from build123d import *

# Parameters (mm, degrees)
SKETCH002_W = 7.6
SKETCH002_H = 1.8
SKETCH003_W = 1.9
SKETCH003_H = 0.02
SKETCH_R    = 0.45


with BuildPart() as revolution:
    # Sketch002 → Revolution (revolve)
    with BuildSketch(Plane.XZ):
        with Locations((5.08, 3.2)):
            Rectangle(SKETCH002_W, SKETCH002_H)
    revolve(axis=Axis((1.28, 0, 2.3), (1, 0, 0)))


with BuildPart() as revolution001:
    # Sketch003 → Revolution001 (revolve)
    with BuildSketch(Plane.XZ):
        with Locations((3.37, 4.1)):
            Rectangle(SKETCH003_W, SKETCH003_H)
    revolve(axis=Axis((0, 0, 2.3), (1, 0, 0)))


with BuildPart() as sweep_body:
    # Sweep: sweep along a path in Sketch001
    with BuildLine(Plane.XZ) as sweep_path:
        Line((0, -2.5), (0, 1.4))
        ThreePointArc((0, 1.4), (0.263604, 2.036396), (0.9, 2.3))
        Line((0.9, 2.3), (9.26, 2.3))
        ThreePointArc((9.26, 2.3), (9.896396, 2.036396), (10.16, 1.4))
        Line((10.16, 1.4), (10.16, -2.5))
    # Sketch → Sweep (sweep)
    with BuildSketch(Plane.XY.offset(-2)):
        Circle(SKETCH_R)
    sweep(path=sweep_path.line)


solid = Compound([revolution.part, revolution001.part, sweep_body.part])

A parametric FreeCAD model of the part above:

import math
import FreeCAD as App
import Part
import Sketcher
from FreeCAD import Vector

doc = App.newDocument("Part")
body = doc.addObject("PartDesign::Body", "Body")

sketch1 = body.newObject("Sketcher::SketchObject", "Sketch")
sketch1.AttachmentSupport = (doc.getObject("XZ_Plane"), [""])
sketch1.MapMode = "FlatFace"
sketch1.addGeometry(Part.LineSegment(Vector(1.28, 4.1, 0), Vector(1.28, 2.3, 0)), False)
sketch1.addGeometry(Part.LineSegment(Vector(1.28, 2.3, 0), Vector(8.88, 2.3, 0)), False)
sketch1.addGeometry(Part.LineSegment(Vector(8.88, 2.3, 0), Vector(8.88, 4.1, 0)), False)
sketch1.addGeometry(Part.LineSegment(Vector(8.88, 4.1, 0), Vector(1.28, 4.1, 0)), False)
sketch1.addGeometry(Part.LineSegment(Vector(1.28, 2.3, 0), Vector(8.88, 2.3, 0)), True)
sketch1.addConstraint(Sketcher.Constraint("Coincident", 0, 2, 1, 1))
sketch1.addConstraint(Sketcher.Constraint("Coincident", 1, 2, 2, 1))
sketch1.addConstraint(Sketcher.Constraint("Coincident", 2, 2, 3, 1))
sketch1.addConstraint(Sketcher.Constraint("Coincident", 3, 2, 0, 1))
sketch1.addConstraint(Sketcher.Constraint("Vertical", 0))
sketch1.addConstraint(Sketcher.Constraint("Horizontal", 1))
sketch1.addConstraint(Sketcher.Constraint("Vertical", 2))
sketch1.addConstraint(Sketcher.Constraint("Horizontal", 3))
sketch1.addConstraint(Sketcher.Constraint("Horizontal", 4))
sketch1.addConstraint(Sketcher.Constraint("Coincident", 4, 1, 0, 2))
sketch1.addConstraint(Sketcher.Constraint("Vertical", 2, 2, 4, 2))
sketch1.addConstraint(Sketcher.Constraint("DistanceX", 1, 1, 1, 2, 7.6))
sketch1.addConstraint(Sketcher.Constraint("DistanceY", 0, 2, 0, 1, 1.8))
sketch1.addConstraint(Sketcher.Constraint("DistanceY", -1, 1, 0, 2, 2.3))
sketch1.addConstraint(Sketcher.Constraint("DistanceX", -1, 1, 0, 2, 1.28))
revolution = body.newObject("PartDesign::Revolution", "Revolution")
revolution.Profile = sketch1
revolution.ReferenceAxis = (sketch1, ["Axis0"])
revolution.Angle = 360
body2 = doc.addObject("PartDesign::Body", "Body001")

sketch2 = body2.newObject("Sketcher::SketchObject", "Sketch001")
sketch2.AttachmentSupport = (doc.getObject("XZ_Plane001"), [""])
sketch2.MapMode = "FlatFace"
sketch2.addGeometry(Part.LineSegment(Vector(2.42, 4.11, 0), Vector(2.42, 4.09, 0)), False)
sketch2.addGeometry(Part.LineSegment(Vector(2.42, 4.09, 0), Vector(4.32, 4.09, 0)), False)
sketch2.addGeometry(Part.LineSegment(Vector(4.32, 4.09, 0), Vector(4.32, 4.11, 0)), False)
sketch2.addGeometry(Part.LineSegment(Vector(4.32, 4.11, 0), Vector(2.42, 4.11, 0)), False)
sketch2.addGeometry(Part.LineSegment(Vector(2.42, 2.3, 0), Vector(4.32, 2.3, 0)), True)
sketch2.addConstraint(Sketcher.Constraint("Coincident", 0, 2, 1, 1))
sketch2.addConstraint(Sketcher.Constraint("Coincident", 1, 2, 2, 1))
sketch2.addConstraint(Sketcher.Constraint("Coincident", 2, 2, 3, 1))
sketch2.addConstraint(Sketcher.Constraint("Coincident", 3, 2, 0, 1))
sketch2.addConstraint(Sketcher.Constraint("Vertical", 0))
sketch2.addConstraint(Sketcher.Constraint("Horizontal", 1))
sketch2.addConstraint(Sketcher.Constraint("Vertical", 2))
sketch2.addConstraint(Sketcher.Constraint("Horizontal", 3))
sketch2.addConstraint(Sketcher.Constraint("Horizontal", 4))
sketch2.addConstraint(Sketcher.Constraint("Vertical", 3, 2, 4, 1))
sketch2.addConstraint(Sketcher.Constraint("Vertical", 2, 2, 4, 2))
sketch2.addConstraint(Sketcher.Constraint("DistanceX", 1, 1, 1, 2, 1.9))
sketch2.addConstraint(Sketcher.Constraint("DistanceY", 0, 2, 0, 1, 0.02))
sketch2.addConstraint(Sketcher.Constraint("DistanceY", -1, 1, 4, 1, 2.3))
sketch2.addConstraint(Sketcher.Constraint("DistanceX", -1, 1, 0, 2, 2.42))
sketch2.addConstraint(Sketcher.Constraint("DistanceY", -1, 1, 0, 2, 4.09))
revolution2 = body2.newObject("PartDesign::Revolution", "Revolution001")
revolution2.Profile = sketch2
revolution2.ReferenceAxis = (sketch2, ["Axis0"])
revolution2.Angle = 360
body3 = doc.addObject("PartDesign::Body", "Body002")

sketch3 = body3.newObject("Sketcher::SketchObject", "Sketch002")
sketch3.AttachmentSupport = (doc.getObject("XY_Plane002"), [""])
sketch3.MapMode = "FlatFace"
sketch3.AttachmentOffset = App.Placement(Vector(0, 0, -2), App.Rotation())
sketch3.addGeometry(Part.Circle(Vector(0, 0, 0), Vector(0, 0, 1), 0.45), False)
sketch3.addConstraint(Sketcher.Constraint("Coincident", 0, 3, -1, 1))
sketch3.addConstraint(Sketcher.Constraint("Diameter", 0, 0.9))

sketch4 = body3.newObject("Sketcher::SketchObject", "Sketch003")
sketch4.AttachmentSupport = (doc.getObject("XZ_Plane002"), [""])
sketch4.MapMode = "FlatFace"
sketch4.addGeometry(Part.LineSegment(Vector(0, -2.5, 0), Vector(0, 1.4, 0)), False)
sketch4.addGeometry(Part.ArcOfCircle(Part.Circle(Vector(0.9, 1.4, 0), Vector(0, 0, 1), 0.9), math.radians(90.000022), math.radians(179.999978)), False)
sketch4.addGeometry(Part.LineSegment(Vector(0.9, 2.3, 0), Vector(9.26, 2.3, 0)), False)
sketch4.addGeometry(Part.ArcOfCircle(Part.Circle(Vector(9.26, 1.4, 0), Vector(0, 0, 1), 0.9), math.radians(0.000022), math.radians(89.999978)), False)
sketch4.addGeometry(Part.LineSegment(Vector(10.16, 1.4, 0), Vector(10.16, -2.5, 0)), False)
sketch4.addConstraint(Sketcher.Constraint("Tangent", 0, 2, 1, 2))
sketch4.addConstraint(Sketcher.Constraint("Tangent", 1, 1, 2, 1))
sketch4.addConstraint(Sketcher.Constraint("Tangent", 2, 2, 3, 2))
sketch4.addConstraint(Sketcher.Constraint("Tangent", 3, 1, 4, 1))
sketch4.addConstraint(Sketcher.Constraint("Vertical", 0))
sketch4.addConstraint(Sketcher.Constraint("Horizontal", 2))
sketch4.addConstraint(Sketcher.Constraint("Vertical", 4))
sketch4.addConstraint(Sketcher.Constraint("Equal", 1, 3))
sketch4.addConstraint(Sketcher.Constraint("PointOnObject", 0, 1, -2))
sketch4.addConstraint(Sketcher.Constraint("Horizontal", 0, 1, 4, 2))
sketch4.addConstraint(Sketcher.Constraint("Radius", 1, 0.9))
sketch4.addConstraint(Sketcher.Constraint("DistanceY", 0, 1, 0, 2, 3.9))
sketch4.addConstraint(Sketcher.Constraint("DistanceX", 2, 1, 2, 2, 8.36))
sketch4.addConstraint(Sketcher.Constraint("DistanceY", -1, 1, 1, 3, 1.4))
doc.recompute()

additivepipe = body3.newObject("PartDesign::AdditivePipe", "AdditivePipe")
additivepipe.Profile = sketch3
additivepipe.Spine = (sketch4, ["Edge1", "Edge2", "Edge3", "Edge4", "Edge5"])

doc.recompute()
